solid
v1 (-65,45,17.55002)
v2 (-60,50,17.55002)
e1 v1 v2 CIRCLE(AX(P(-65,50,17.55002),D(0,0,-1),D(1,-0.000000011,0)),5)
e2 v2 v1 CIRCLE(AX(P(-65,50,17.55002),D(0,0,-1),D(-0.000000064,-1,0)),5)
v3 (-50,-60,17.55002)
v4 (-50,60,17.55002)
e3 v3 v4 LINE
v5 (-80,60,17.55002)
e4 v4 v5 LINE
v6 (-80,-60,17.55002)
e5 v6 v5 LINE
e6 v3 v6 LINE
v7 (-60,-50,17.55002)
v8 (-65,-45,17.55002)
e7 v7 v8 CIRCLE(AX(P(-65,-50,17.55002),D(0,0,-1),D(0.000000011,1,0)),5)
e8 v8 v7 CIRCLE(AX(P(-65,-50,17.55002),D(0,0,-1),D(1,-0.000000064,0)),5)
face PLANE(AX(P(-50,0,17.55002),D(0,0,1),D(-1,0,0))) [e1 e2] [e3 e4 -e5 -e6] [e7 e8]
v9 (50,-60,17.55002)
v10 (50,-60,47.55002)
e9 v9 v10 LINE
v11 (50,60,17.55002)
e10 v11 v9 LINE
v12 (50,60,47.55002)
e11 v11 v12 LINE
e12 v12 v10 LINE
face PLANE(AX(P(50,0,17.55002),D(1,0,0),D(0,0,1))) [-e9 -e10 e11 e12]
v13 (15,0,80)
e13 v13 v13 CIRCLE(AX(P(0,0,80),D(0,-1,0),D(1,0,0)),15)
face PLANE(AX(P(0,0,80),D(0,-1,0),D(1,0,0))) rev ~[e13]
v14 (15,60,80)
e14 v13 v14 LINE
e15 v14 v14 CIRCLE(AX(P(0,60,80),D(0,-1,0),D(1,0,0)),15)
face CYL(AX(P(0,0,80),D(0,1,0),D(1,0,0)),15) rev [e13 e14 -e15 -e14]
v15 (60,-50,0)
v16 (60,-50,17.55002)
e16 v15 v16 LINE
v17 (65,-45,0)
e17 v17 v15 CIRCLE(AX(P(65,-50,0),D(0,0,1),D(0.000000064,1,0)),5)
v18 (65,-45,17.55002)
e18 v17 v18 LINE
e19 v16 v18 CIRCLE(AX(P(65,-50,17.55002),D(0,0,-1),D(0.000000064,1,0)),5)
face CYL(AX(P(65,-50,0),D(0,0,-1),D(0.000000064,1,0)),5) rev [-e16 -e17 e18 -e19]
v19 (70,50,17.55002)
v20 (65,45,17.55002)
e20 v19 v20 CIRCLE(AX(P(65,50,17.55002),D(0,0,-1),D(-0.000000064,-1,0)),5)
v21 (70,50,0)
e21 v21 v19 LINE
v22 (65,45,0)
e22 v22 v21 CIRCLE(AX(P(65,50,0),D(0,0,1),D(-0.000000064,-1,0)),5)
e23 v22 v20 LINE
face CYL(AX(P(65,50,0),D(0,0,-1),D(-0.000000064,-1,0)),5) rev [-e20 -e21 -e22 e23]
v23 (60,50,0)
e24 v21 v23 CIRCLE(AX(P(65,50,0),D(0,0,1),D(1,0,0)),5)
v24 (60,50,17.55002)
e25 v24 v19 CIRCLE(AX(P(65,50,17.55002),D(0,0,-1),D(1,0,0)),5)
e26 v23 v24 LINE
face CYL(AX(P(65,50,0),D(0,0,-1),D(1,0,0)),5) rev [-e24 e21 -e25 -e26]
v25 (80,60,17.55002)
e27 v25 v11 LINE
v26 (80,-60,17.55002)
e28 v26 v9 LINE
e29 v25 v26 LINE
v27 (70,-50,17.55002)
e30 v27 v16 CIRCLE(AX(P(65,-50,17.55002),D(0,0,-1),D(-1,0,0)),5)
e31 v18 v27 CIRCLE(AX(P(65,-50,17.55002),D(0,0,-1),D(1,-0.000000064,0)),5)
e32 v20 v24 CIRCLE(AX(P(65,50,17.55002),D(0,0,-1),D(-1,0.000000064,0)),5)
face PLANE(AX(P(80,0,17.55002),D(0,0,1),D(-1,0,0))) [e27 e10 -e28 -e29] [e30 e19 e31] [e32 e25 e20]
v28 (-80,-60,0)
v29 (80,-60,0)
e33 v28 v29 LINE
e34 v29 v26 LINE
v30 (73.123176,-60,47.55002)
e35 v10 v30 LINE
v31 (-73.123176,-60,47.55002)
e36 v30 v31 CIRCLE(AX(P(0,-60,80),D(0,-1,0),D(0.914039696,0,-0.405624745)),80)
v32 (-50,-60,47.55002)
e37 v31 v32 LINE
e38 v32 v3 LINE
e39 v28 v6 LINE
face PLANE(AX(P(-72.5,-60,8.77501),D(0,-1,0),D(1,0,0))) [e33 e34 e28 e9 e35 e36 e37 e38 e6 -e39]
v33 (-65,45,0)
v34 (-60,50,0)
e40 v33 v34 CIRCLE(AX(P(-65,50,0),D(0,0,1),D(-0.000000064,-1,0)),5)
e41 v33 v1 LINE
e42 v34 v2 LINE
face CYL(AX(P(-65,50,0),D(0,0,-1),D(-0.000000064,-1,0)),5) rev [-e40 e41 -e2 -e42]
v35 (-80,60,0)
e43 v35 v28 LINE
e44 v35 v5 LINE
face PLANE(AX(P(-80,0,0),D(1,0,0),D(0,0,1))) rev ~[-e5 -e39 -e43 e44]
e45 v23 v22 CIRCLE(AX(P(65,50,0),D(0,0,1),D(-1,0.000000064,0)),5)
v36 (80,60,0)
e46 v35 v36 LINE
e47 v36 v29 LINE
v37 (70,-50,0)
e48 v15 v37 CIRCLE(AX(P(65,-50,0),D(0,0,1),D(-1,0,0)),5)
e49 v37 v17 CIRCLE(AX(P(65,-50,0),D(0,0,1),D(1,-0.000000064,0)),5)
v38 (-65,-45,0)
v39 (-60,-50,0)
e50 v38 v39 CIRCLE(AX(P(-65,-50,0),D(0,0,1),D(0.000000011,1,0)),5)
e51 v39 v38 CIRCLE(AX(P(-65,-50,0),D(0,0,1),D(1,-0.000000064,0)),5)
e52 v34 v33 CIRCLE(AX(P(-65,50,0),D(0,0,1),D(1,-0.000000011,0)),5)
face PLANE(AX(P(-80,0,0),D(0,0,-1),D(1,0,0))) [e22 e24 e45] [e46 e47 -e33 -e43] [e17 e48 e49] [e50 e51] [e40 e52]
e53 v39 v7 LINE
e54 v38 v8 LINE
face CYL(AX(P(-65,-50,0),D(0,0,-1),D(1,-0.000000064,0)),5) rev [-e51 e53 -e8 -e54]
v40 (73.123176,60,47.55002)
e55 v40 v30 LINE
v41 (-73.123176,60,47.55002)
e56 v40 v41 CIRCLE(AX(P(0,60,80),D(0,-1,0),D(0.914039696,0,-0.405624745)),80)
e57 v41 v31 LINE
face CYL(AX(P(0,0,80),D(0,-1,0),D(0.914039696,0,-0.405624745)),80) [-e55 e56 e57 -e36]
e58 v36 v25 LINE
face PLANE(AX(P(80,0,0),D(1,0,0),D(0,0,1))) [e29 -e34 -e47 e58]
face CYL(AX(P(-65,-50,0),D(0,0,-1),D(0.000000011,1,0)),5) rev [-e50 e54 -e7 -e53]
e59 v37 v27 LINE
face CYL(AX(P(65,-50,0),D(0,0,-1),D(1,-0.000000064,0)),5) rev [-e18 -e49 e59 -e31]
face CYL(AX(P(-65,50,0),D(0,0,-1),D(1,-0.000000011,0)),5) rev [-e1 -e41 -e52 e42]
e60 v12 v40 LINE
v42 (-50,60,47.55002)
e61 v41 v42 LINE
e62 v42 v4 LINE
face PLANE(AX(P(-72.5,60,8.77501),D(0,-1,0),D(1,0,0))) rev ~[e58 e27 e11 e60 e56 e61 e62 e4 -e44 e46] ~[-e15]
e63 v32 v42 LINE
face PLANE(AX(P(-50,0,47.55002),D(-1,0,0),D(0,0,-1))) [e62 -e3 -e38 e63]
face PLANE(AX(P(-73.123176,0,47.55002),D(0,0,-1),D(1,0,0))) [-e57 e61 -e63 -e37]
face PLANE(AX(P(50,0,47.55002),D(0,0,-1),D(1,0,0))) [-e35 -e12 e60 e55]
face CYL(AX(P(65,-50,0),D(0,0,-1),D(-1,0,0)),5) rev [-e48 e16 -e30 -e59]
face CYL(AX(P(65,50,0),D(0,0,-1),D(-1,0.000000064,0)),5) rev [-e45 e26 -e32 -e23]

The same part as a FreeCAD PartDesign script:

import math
import FreeCAD as App
import Part
import Sketcher
from FreeCAD import Vector
Q = App.Units.Quantity

doc = App.newDocument("Part")
body = doc.addObject("PartDesign::Body", "Body")

# Sketch on XZ plane
sketch1 = body.newObject("Sketcher::SketchObject", "Sketch")
sketch1.AttachmentSupport = (doc.getObject("XZ_Plane"), [""])
sketch1.MapMode = "FlatFace"
sketch1.addGeometry([
    Part.LineSegment(Vector(-80, 18, 0), Vector(-80, 0, 0)),  # 0
    Part.LineSegment(Vector(-80, 0, 0), Vector(80, 0, 0)),  # 1
    Part.LineSegment(Vector(80, 0, 0), Vector(80, 18, 0)),  # 2
    Part.LineSegment(Vector(80, 18, 0), Vector(50, 18, 0)),  # 3
    Part.LineSegment(Vector(50, 18, 0), Vector(50, 48, 0)),  # 4
    Part.LineSegment(Vector(50, 48, 0), Vector(73, 48, 0)),  # 5
    Part.ArcOfCircle(Part.Circle(Vector(0, 80, 0), Vector(0, 0, 1), 80), math.radians(-24), math.radians(204)),  # 6
    Part.LineSegment(Vector(-73, 48, 0), Vector(-50, 48, 0)),  # 7
    Part.LineSegment(Vector(-50, 48, 0), Vector(-50, 18, 0)),  # 8
    Part.LineSegment(Vector(-50, 18, 0), Vector(-80, 18, 0)),  # 9
    Part.Circle(Vector(0, 80, 0), Vector(0, 0, 1), 15),  # 10
], False)
sketch1.addConstraint([
    Sketcher.Constraint("Coincident", 0, 2, 1, 1),
    Sketcher.Constraint("Coincident", 1, 2, 2, 1),
    Sketcher.Constraint("Coincident", 2, 2, 3, 1),
    Sketcher.Constraint("Coincident", 3, 2, 4, 1),
    Sketcher.Constraint("Coincident", 4, 2, 5, 1),
    Sketcher.Constraint("Coincident", 5, 2, 6, 1),
    Sketcher.Constraint("Coincident", 6, 2, 7, 1),
    Sketcher.Constraint("Coincident", 7, 2, 8, 1),
    Sketcher.Constraint("Coincident", 8, 2, 9, 1),
    Sketcher.Constraint("Coincident", 9, 2, 0, 1),
    Sketcher.Constraint("Vertical", 0),
    Sketcher.Constraint("Horizontal", 1),
    Sketcher.Constraint("Vertical", 2),
    Sketcher.Constraint("Horizontal", 3),
    Sketcher.Constraint("Vertical", 4),
    Sketcher.Constraint("Horizontal", 5),
    Sketcher.Constraint("Horizontal", 7),
    Sketcher.Constraint("Vertical", 8),
    Sketcher.Constraint("Horizontal", 9),
    Sketcher.Constraint("Coincident", 10, 3, 6, 3),
    Sketcher.Constraint("Symmetric", 0, 2, 1, 2, -1, 1),
    Sketcher.Constraint("Symmetric", 5, 2, 6, 2, -2),
    Sketcher.Constraint("Symmetric", 3, 2, 8, 2, -2),
    Sketcher.Constraint("Equal", 9, 4),
    Sketcher.Constraint("Diameter", 10, Q("30 mm")),
    Sketcher.Constraint("Radius", 6, Q("80 mm")),
    Sketcher.Constraint("DistanceX", 1, 1, 1, 2, Q("160 mm")),
    Sketcher.Constraint("DistanceX", 3, 2, 3, 1, Q("30 mm")),
    Sketcher.Constraint("DistanceY", -1, 1, 6, 3, Q("80 mm")),
    Sketcher.Constraint("DistanceY", 0, 2, 0, 1, Q("17.55002 mm")),
])
pad1 = body.newObject("PartDesign::Pad", "Pad")
pad1.Profile = sketch1
pad1.Length = 120
pad1.Midplane = True

# Sketch on XY plane
sketch2 = body.newObject("Sketcher::SketchObject", "Sketch001")
sketch2.AttachmentSupport = (doc.getObject("XY_Plane"), [""])
sketch2.MapMode = "FlatFace"
sketch2.addGeometry([
    Part.ArcOfCircle(Part.Circle(Vector(-65, 50, 0), Vector(0, 0, 1), 5), math.radians(0), math.radians(270)),  # 0
    Part.ArcOfCircle(Part.Circle(Vector(-65, 50, 0), Vector(0, 0, 1), 5), math.radians(-90), math.radians(0)),  # 1
    Part.ArcOfCircle(Part.Circle(Vector(-65, -50, 0), Vector(0, 0, 1), 5), math.radians(0), math.radians(90)),  # 2
    Part.ArcOfCircle(Part.Circle(Vector(-65, -50, 0), Vector(0, 0, 1), 5), math.radians(90), math.radians(360)),  # 3
    Part.ArcOfCircle(Part.Circle(Vector(65, 50, 0), Vector(0, 0, 1), 5), math.radians(180), math.radians(270)),  # 4
    Part.ArcOfCircle(Part.Circle(Vector(65, 50, 0), Vector(0, 0, 1), 5), math.radians(-90), math.radians(0)),  # 5
    Part.ArcOfCircle(Part.Circle(Vector(65, 50, 0), Vector(0, 0, 1), 5), math.radians(0), math.radians(180)),  # 6
    Part.ArcOfCircle(Part.Circle(Vector(65, -50, 0), Vector(0, 0, 1), 5), math.radians(180), math.radians(360)),  # 7
    Part.ArcOfCircle(Part.Circle(Vector(65, -50, 0), Vector(0, 0, 1), 5), math.radians(0), math.radians(90)),  # 8
    Part.ArcOfCircle(Part.Circle(Vector(65, -50, 0), Vector(0, 0, 1), 5), math.radians(90), math.radians(180)),  # 9
], False)
sketch2.addConstraint([
    Sketcher.Constraint("Tangent", 0, 1, 1, 2),
    Sketcher.Constraint("Coincident", 1, 1, 0, 2),
    Sketcher.Constraint("Tangent", 2, 1, 3, 2),
    Sketcher.Constraint("Coincident", 3, 1, 2, 2),
    Sketcher.Constraint("Tangent", 4, 2, 5, 1),
    Sketcher.Constraint("Tangent", 5, 2, 6, 1),
    Sketcher.Constraint("Tangent", 6, 2, 4, 1),
    Sketcher.Constraint("Tangent", 7, 2, 8, 1),
    Sketcher.Constraint("Tangent", 8, 2, 9, 1),
    Sketcher.Constraint("Tangent", 9, 2, 7, 1),
    Sketcher.Constraint("Equal", 1, 2),
    Sketcher.Constraint("Equal", 3, 4),
    Sketcher.Constraint("Equal", 6, 7),
    Sketcher.Constraint("Symmetric", 2, 3, 4, 3, -1, 1),
    Sketcher.Constraint("Symmetric", 0, 3, 7, 3, -1, 1),
    Sketcher.Constraint("Symmetric", 0, 3, 4, 3, -2),
    Sketcher.Constraint("Horizontal", 6, 3, 0, 1),
    Sketcher.Constraint("Horizontal", 9, 3, 2, 1),
    Sketcher.Constraint("Horizontal", 0, 1, 5, 2),
    Sketcher.Constraint("Horizontal", 5, 2, 6, 2),
    Sketcher.Constraint("Horizontal", 2, 1, 7, 2),
    Sketcher.Constraint("Horizontal", 7, 2, 9, 2),
    Sketcher.Constraint("Vertical", 3, 3, 1, 1),
    Sketcher.Constraint("Vertical", 1, 1, 3, 1),
    Sketcher.Constraint("Vertical", 9, 3, 4, 2),
    Sketcher.Constraint("Vertical", 4, 2, 8, 2),
    Sketcher.Constraint("Radius", 0, Q("5 mm")),
    Sketcher.Constraint("DistanceX", 0, 3, -1, 1, Q("65 mm")),
    Sketcher.Constraint("DistanceY", -1, 1, 0, 3, Q("50 mm")),
])
pocket1 = body.newObject("PartDesign::Pocket", "Pocket")
pocket1.Profile = sketch2
pocket1.Length = 25
pocket1.Reversed = True

# Sketch on XZ plane
sketch3 = body.newObject("Sketcher::SketchObject", "Sketch002")
sketch3.AttachmentSupport = (doc.getObject("XZ_Plane"), [""])
sketch3.MapMode = "FlatFace"
sketch3.addGeometry(Part.Circle(Vector(0, 80, 0), Vector(0, 0, 1), 15), False)
sketch3.addConstraint([
    Sketcher.Constraint("PointOnObject", 0, 3, -2),
    Sketcher.Constraint("Diameter", 0, Q("30 mm")),
    Sketcher.Constraint("DistanceY", -1, 1, 0, 3, Q("80 mm")),
])
pad2 = body.newObject("PartDesign::Pad", "Pad001")
pad2.Profile = sketch3
pad2.Length = 60

doc.recompute()
